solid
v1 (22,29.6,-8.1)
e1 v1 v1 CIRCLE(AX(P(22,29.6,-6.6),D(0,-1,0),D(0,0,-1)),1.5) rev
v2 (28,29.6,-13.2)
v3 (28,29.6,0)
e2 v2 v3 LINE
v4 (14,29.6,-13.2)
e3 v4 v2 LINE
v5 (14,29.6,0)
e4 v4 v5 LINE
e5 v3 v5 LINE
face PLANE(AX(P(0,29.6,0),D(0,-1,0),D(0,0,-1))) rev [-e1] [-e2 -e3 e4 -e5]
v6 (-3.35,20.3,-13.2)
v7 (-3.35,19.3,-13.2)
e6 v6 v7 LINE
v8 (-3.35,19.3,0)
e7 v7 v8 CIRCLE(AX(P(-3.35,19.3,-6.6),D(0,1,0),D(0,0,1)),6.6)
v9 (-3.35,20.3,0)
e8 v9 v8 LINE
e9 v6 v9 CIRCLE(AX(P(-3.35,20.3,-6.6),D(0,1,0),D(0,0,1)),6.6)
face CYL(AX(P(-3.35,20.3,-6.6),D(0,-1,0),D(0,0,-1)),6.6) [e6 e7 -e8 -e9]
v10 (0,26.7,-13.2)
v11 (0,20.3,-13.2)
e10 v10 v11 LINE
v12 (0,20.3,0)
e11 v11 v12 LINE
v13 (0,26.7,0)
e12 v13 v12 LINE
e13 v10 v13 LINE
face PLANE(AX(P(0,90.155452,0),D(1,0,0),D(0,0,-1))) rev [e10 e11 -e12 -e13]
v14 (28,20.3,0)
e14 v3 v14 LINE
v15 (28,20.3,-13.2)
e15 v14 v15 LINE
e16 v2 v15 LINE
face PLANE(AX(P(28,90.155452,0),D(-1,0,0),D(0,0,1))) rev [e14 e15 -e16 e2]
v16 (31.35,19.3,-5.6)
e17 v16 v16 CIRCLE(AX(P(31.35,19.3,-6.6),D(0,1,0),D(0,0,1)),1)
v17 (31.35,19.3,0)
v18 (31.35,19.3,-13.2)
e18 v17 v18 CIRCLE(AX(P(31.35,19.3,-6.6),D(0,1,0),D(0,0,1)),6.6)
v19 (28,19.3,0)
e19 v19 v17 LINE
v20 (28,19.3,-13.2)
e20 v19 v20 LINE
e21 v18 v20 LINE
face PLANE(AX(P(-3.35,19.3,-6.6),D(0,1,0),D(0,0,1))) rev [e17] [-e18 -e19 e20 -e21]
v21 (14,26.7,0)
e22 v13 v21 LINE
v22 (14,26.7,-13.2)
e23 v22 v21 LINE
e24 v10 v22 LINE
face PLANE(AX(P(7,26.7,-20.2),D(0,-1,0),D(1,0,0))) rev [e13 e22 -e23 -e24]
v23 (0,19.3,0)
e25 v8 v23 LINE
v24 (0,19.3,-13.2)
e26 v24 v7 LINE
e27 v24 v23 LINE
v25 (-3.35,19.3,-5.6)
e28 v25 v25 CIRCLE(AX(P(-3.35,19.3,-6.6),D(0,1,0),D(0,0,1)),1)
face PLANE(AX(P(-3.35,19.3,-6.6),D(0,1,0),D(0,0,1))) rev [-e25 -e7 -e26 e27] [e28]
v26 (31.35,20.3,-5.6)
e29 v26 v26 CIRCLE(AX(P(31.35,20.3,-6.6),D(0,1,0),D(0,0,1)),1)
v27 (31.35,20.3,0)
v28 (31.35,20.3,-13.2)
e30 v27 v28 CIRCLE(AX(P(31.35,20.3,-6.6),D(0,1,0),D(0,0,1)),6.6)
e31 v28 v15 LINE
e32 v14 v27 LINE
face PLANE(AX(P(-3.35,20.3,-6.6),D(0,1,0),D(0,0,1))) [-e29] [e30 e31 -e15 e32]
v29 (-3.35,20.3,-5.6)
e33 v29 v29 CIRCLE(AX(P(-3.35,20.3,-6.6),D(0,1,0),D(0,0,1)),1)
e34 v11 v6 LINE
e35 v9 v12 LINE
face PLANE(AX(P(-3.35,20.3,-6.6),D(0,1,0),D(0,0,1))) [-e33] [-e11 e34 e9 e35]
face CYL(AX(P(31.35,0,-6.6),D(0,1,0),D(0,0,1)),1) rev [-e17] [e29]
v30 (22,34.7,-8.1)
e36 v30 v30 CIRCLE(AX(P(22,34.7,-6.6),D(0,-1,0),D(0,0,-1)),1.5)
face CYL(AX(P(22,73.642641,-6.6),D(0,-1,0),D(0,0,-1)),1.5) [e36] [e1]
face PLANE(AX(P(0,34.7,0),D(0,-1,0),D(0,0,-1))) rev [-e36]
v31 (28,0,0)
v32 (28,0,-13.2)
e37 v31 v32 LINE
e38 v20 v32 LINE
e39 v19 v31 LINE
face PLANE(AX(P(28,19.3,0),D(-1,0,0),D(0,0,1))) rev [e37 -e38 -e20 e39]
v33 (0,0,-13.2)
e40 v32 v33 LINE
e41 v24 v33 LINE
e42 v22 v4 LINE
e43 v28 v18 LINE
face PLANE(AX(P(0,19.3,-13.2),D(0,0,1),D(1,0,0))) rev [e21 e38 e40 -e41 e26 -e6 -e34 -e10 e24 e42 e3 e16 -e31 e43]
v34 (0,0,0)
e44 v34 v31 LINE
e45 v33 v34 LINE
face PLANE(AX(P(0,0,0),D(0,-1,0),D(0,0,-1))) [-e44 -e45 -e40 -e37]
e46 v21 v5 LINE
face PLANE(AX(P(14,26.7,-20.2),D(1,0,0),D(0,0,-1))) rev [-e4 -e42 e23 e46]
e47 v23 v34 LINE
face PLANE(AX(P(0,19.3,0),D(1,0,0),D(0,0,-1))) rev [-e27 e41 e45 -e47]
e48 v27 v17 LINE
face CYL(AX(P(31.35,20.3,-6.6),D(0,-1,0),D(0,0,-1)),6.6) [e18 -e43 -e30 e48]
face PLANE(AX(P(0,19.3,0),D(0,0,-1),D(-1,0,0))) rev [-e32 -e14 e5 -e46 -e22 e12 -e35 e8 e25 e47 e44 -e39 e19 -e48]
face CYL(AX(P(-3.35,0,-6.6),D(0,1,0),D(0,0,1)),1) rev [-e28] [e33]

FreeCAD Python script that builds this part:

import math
import FreeCAD as App
import Part
import Sketcher
Q = App.Units.Quantity

doc = App.newDocument("Part")
body = doc.addObject("PartDesign::Body", "Body")

# Sketch on XZ plane
sketch1 = body.newObject("Sketcher::SketchObject", "Sketch")
sketch1.AttachmentSupport = (doc.getObject("XZ_Plane"), [""])
sketch1.MapMode = "FlatFace"
sketch1.addGeometry([
    Part.LineSegment(App.Vector(0, -13, 0), App.Vector(0, 0, 0)),
    Part.LineSegment(App.Vector(0, 0, 0), App.Vector(28, 0, 0)),
    Part.LineSegment(App.Vector(28, 0, 0), App.Vector(28, -13, 0)),
    Part.LineSegment(App.Vector(28, -13, 0), App.Vector(0, -13, 0)),
], False)
sketch1.addConstraint([
    Sketcher.Constraint("Coincident", 0, 2, 1, 1),
    Sketcher.Constraint("Coincident", 1, 2, 2, 1),
    Sketcher.Constraint("Coincident", 2, 2, 3, 1),
    Sketcher.Constraint("Coincident", 3, 2, 0, 1),
    Sketcher.Constraint("Vertical", 0),
    Sketcher.Constraint("Horizontal", 1),
    Sketcher.Constraint("Vertical", 2),
    Sketcher.Constraint("Horizontal", 3),
    Sketcher.Constraint("Coincident", 0, 2, -1, 1),
    Sketcher.Constraint("DistanceX", 1, 1, 1, 2, Q("28 mm")),
    Sketcher.Constraint("DistanceY", 0, 1, 0, 2, Q("13.2 mm")),
])
pad1 = body.newObject("PartDesign::Pad", "Pad")
pad1.Profile = sketch1
pad1.Length = 19.3
pad1.Reversed = True

# Sketch on XZ plane
sketch2 = body.newObject("Sketcher::SketchObject", "Sketch001")
sketch2.AttachmentSupport = (doc.getObject("XZ_Plane"), [""])
sketch2.MapMode = "FlatFace"
sketch2.AttachmentOffset = App.Placement(App.Vector(0, 0, -19.3), App.Rotation())
sketch2.addGeometry([
    Part.LineSegment(App.Vector(31, -13, 0), App.Vector(-3, -13, 0)),
    Part.ArcOfCircle(Part.Circle(App.Vector(-3, -7, 0), App.Vector(0, 0, 1), 7), math.radians(90), math.radians(270)),
    Part.LineSegment(App.Vector(-3, 0, 0), App.Vector(31, 0, 0)),
    Part.ArcOfCircle(Part.Circle(App.Vector(31, -7, 0), App.Vector(0, 0, 1), 7), math.radians(-90), math.radians(90)),
], False)
sketch2.addConstraint([
    Sketcher.Constraint("Tangent", 0, 2, 1, 2),
    Sketcher.Constraint("Tangent", 1, 1, 2, 1),
    Sketcher.Constraint("Tangent", 2, 2, 3, 2),
    Sketcher.Constraint("Tangent", 3, 1, 0, 1),
    Sketcher.Constraint("Horizontal", 0),
    Sketcher.Constraint("Horizontal", 2),
    Sketcher.Constraint("PointOnObject", 1, 1, -1),
    Sketcher.Constraint("Radius", 1, Q("6.6 mm")),
    Sketcher.Constraint("DistanceX", 0, 2, 0, 1, Q("34.7 mm")),
    Sketcher.Constraint("DistanceX", 1, 3, -1, 1, Q("3.35 mm")),
])
pad2 = body.newObject("PartDesign::Pad", "Pad001")
pad2.Profile = sketch2
pad2.Length = 1
pad2.Reversed = True

# Sketch on XZ plane
sketch3 = body.newObject("Sketcher::SketchObject", "Sketch002")
sketch3.AttachmentSupport = (doc.getObject("XZ_Plane"), [""])
sketch3.MapMode = "FlatFace"
sketch3.AttachmentOffset = App.Placement(App.Vector(0, 0, -20.3), App.Rotation())
sketch3.addGeometry([
    Part.LineSegment(App.Vector(0, -13, 0), App.Vector(0, 0, 0)),
    Part.LineSegment(App.Vector(0, 0, 0), App.Vector(28, 0, 0)),
    Part.LineSegment(App.Vector(28, 0, 0), App.Vector(28, -13, 0)),
    Part.LineSegment(App.Vector(28, -13, 0), App.Vector(0, -13, 0)),
], False)
sketch3.addConstraint([
    Sketcher.Constraint("Coincident", 0, 2, 1, 1),
    Sketcher.Constraint("Coincident", 1, 2, 2, 1),
    Sketcher.Constraint("Coincident", 2, 2, 3, 1),
    Sketcher.Constraint("Coincident", 3, 2, 0, 1),
    Sketcher.Constraint("Vertical", 0),
    Sketcher.Constraint("Horizontal", 1),
    Sketcher.Constraint("Vertical", 2),
    Sketcher.Constraint("Horizontal", 3),
    Sketcher.Constraint("Coincident", 0, 2, -1, 1),
    Sketcher.Constraint("DistanceX", 1, 1, 1, 2, Q("28 mm")),
    Sketcher.Constraint("DistanceY", 0, 1, 0, 2, Q("13.2 mm")),
])
pad3 = body.newObject("PartDesign::Pad", "Pad002")
pad3.Profile = sketch3
pad3.Length = 9.3
pad3.Reversed = True

# Sketch on XY plane
sketch4 = body.newObject("Sketcher::SketchObject", "Sketch003")
sketch4.AttachmentSupport = (doc.getObject("XY_Plane"), [""])
sketch4.MapMode = "FlatFace"
sketch4.addGeometry([
    Part.LineSegment(App.Vector(0, 26.7, 0), App.Vector(14, 26.7, 0)),  # 0
    Part.LineSegment(App.Vector(14, 26.7, 0), App.Vector(14, 29.6, 0)),  # 1
    Part.LineSegment(App.Vector(14, 29.6, 0), App.Vector(28, 29.6, 0)),  # 2
    Part.LineSegment(App.Vector(28, 29.6, 0), App.Vector(28, 24.9, 0)),  # 3
    Part.LineSegment(App.Vector(28, 24.9, 0), App.Vector(30, 24.9, 0)),  # 4
    Part.LineSegment(App.Vector(30, 24.9, 0), App.Vector(30, 31.6, 0)),  # 5
    Part.LineSegment(App.Vector(30, 31.6, 0), App.Vector(0, 31.6, 0)),  # 6
    Part.LineSegment(App.Vector(0, 31.6, 0), App.Vector(0, 26.7, 0)),  # 7
], False)
sketch4.addConstraint([
    Sketcher.Constraint("Coincident", 0, 2, 1, 1),
    Sketcher.Constraint("Coincident", 1, 2, 2, 1),
    Sketcher.Constraint("Coincident", 2, 2, 3, 1),
    Sketcher.Constraint("Coincident", 3, 2, 4, 1),
    Sketcher.Constraint("Coincident", 4, 2, 5, 1),
    Sketcher.Constraint("Coincident", 5, 2, 6, 1),
    Sketcher.Constraint("Coincident", 6, 2, 7, 1),
    Sketcher.Constraint("Coincident", 7, 2, 0, 1),
    Sketcher.Constraint("Horizontal", 0),
    Sketcher.Constraint("Vertical", 1),
    Sketcher.Constraint("Horizontal", 2),
    Sketcher.Constraint("Vertical", 3),
    Sketcher.Constraint("Horizontal", 4),
    Sketcher.Constraint("Vertical", 5),
    Sketcher.Constraint("Horizontal", 6),
    Sketcher.Constraint("Vertical", 7),
    Sketcher.Constraint("PointOnObject", 6, 2, -2),
    Sketcher.Constraint("Equal", 0, 2),
    Sketcher.Constraint("DistanceX", 0, 1, 0, 2, Q("14 mm")),
    Sketcher.Constraint("DistanceX", 4, 1, 4, 2, Q("2 mm")),
    Sketcher.Constraint("DistanceY", 1, 1, 1, 2, Q("2.9 mm")),
    Sketcher.Constraint("DistanceY", 7, 2, 7, 1, Q("4.9 mm")),
    Sketcher.Constraint("DistanceY", 3, 2, 3, 1, Q("4.65 mm")),
    Sketcher.Constraint("DistanceY", -1, 1, 0, 2, Q("26.7 mm")),
])
pocket1 = body.newObject("PartDesign::Pocket", "Pocket")
pocket1.Profile = sketch4
pocket1.Length = 20.2

# Sketch on XZ plane
sketch5 = body.newObject("Sketcher::SketchObject", "Sketch004")
sketch5.AttachmentSupport = (doc.getObject("XZ_Plane"), [""])
sketch5.MapMode = "FlatFace"
sketch5.AttachmentOffset = App.Placement(App.Vector(0, 0, -20.3), App.Rotation())
sketch5.addGeometry([
    Part.Circle(App.Vector(-3.4, -6.6, 0), App.Vector(0, 0, 1), 1),
    Part.Circle(App.Vector(31.4, -6.6, 0), App.Vector(0, 0, 1), 1),
], False)
sketch5.addConstraint([
    Sketcher.Constraint("Equal", 0, 1),
    Sketcher.Constraint("Horizontal", 0, 3, 1, 3),
    Sketcher.Constraint("Diameter", 0, Q("2 mm")),
    Sketcher.Constraint("DistanceY", 0, 3, -1, 1, Q("6.6 mm")),
    Sketcher.Constraint("DistanceX", 0, 3, 1, 3, Q("34.7 mm")),
    Sketcher.Constraint("DistanceX", 0, 3, -1, 1, Q("3.35 mm")),
])
pocket2 = body.newObject("PartDesign::Pocket", "Pocket001")
pocket2.Profile = sketch5
pocket2.Type = "ThroughAll"
pocket2.Reversed = True

# Sketch on XZ plane
sketch6 = body.newObject("Sketcher::SketchObject", "Sketch005")
sketch6.AttachmentSupport = (doc.getObject("XZ_Plane"), [""])
sketch6.MapMode = "FlatFace"
sketch6.AttachmentOffset = App.Placement(App.Vector(0, 0, -29.6), App.Rotation())
sketch6.addGeometry(Part.Circle(App.Vector(22, -6.6, 0), App.Vector(0, 0, 1), 1.5), False)
sketch6.addConstraint([
    Sketcher.Constraint("Diameter", 0, Q("3 mm")),
    Sketcher.Constraint("DistanceX", -1, 1, 0, 3, Q("22 mm")),
    Sketcher.Constraint("DistanceY", 0, 3, -1, 1, Q("6.6 mm")),
])
pad4 = body.newObject("PartDesign::Pad", "Pad003")
pad4.Profile = sketch6
pad4.Length = 5.1
pad4.Reversed = True

doc.recompute()
